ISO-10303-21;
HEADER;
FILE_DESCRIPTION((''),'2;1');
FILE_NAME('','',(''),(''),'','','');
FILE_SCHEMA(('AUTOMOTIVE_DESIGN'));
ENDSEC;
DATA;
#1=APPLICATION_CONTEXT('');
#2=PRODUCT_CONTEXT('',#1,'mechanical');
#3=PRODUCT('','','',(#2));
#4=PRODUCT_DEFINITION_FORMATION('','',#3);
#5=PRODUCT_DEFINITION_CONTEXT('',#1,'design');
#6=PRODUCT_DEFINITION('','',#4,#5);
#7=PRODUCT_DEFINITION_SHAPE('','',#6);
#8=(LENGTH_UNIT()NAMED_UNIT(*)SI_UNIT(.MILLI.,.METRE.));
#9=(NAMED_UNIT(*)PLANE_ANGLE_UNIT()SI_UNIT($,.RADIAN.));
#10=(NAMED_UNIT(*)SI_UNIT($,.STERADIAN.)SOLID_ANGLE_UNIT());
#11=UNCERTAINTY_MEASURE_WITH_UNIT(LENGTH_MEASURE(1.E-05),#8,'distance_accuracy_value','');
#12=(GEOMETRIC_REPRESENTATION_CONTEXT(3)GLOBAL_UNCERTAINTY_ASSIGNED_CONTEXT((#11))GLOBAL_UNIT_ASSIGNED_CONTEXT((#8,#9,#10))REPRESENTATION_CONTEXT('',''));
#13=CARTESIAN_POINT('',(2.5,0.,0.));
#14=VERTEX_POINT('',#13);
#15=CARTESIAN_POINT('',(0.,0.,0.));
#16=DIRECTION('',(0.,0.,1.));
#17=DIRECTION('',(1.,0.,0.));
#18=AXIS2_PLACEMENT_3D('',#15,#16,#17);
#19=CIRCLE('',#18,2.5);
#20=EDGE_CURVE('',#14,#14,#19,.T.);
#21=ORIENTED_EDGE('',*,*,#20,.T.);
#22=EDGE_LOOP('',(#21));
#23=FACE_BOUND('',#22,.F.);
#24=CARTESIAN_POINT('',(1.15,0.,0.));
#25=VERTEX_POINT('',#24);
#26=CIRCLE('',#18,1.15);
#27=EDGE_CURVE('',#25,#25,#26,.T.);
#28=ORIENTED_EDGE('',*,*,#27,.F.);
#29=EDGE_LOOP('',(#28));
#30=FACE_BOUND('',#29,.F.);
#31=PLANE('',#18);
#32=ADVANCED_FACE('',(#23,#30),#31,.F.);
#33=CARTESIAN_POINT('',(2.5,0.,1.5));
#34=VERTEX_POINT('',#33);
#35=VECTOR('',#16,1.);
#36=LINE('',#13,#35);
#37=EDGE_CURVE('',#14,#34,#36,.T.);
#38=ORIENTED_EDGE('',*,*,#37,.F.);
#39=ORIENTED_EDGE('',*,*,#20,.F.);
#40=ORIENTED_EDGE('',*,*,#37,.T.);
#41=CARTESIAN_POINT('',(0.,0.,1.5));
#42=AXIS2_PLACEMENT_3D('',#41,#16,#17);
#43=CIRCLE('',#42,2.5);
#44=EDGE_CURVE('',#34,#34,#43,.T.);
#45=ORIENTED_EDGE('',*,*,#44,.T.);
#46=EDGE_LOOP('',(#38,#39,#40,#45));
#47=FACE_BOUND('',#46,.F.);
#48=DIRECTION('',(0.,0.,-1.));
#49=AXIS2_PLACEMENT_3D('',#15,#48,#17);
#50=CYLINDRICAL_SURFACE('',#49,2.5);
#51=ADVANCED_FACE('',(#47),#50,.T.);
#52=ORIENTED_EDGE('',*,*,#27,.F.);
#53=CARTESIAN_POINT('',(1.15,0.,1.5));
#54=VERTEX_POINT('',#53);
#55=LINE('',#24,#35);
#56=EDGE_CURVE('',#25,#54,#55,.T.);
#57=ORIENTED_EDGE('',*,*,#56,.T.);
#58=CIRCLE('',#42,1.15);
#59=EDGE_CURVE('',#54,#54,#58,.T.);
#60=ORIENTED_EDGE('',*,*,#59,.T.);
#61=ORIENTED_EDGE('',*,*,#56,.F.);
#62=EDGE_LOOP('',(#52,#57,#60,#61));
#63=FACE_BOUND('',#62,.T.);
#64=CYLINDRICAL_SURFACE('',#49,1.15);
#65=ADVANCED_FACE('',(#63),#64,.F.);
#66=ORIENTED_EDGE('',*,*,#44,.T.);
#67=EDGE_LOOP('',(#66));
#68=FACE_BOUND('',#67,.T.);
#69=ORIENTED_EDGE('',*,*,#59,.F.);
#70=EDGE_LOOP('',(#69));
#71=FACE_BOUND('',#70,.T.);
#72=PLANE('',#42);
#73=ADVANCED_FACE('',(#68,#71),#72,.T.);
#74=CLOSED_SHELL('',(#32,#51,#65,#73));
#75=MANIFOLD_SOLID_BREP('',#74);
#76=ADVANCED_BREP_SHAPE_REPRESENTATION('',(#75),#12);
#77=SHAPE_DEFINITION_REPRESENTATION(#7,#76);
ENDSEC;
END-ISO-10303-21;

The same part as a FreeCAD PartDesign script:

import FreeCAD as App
import Part
import Sketcher
from FreeCAD import Vector

doc = App.newDocument("Part")
body = doc.addObject("PartDesign::Body", "Body")

# Sketch on XY plane
sketch1 = doc.addObject("Sketcher::SketchObject", "Sketch")
body.addObject(sketch1)
sketch1.AttachmentSupport = (doc.XY_Plane, [""])
sketch1.MapMode = "FlatFace"
sketch1.addGeometry([
    Part.Circle(Vector(0, 0, 0), Vector(0, 0, 1), 2.5),
    Part.Circle(Vector(0, 0, 0), Vector(0, 0, 1), 1.1),
], False)
sketch1.addConstraint([
    Sketcher.Constraint("Coincident", 0, 3, -1, 1),
    Sketcher.Constraint("Coincident", 1, 3, -1, 1),
    Sketcher.Constraint("Diameter", 0, 5.0),
    Sketcher.Constraint("Diameter", 1, 2.3),
])
pad1 = doc.addObject("PartDesign::Pad", "Pad")
body.addObject(pad1)
pad1.Profile = sketch1
pad1.Length = 1.5

doc.recompute()
